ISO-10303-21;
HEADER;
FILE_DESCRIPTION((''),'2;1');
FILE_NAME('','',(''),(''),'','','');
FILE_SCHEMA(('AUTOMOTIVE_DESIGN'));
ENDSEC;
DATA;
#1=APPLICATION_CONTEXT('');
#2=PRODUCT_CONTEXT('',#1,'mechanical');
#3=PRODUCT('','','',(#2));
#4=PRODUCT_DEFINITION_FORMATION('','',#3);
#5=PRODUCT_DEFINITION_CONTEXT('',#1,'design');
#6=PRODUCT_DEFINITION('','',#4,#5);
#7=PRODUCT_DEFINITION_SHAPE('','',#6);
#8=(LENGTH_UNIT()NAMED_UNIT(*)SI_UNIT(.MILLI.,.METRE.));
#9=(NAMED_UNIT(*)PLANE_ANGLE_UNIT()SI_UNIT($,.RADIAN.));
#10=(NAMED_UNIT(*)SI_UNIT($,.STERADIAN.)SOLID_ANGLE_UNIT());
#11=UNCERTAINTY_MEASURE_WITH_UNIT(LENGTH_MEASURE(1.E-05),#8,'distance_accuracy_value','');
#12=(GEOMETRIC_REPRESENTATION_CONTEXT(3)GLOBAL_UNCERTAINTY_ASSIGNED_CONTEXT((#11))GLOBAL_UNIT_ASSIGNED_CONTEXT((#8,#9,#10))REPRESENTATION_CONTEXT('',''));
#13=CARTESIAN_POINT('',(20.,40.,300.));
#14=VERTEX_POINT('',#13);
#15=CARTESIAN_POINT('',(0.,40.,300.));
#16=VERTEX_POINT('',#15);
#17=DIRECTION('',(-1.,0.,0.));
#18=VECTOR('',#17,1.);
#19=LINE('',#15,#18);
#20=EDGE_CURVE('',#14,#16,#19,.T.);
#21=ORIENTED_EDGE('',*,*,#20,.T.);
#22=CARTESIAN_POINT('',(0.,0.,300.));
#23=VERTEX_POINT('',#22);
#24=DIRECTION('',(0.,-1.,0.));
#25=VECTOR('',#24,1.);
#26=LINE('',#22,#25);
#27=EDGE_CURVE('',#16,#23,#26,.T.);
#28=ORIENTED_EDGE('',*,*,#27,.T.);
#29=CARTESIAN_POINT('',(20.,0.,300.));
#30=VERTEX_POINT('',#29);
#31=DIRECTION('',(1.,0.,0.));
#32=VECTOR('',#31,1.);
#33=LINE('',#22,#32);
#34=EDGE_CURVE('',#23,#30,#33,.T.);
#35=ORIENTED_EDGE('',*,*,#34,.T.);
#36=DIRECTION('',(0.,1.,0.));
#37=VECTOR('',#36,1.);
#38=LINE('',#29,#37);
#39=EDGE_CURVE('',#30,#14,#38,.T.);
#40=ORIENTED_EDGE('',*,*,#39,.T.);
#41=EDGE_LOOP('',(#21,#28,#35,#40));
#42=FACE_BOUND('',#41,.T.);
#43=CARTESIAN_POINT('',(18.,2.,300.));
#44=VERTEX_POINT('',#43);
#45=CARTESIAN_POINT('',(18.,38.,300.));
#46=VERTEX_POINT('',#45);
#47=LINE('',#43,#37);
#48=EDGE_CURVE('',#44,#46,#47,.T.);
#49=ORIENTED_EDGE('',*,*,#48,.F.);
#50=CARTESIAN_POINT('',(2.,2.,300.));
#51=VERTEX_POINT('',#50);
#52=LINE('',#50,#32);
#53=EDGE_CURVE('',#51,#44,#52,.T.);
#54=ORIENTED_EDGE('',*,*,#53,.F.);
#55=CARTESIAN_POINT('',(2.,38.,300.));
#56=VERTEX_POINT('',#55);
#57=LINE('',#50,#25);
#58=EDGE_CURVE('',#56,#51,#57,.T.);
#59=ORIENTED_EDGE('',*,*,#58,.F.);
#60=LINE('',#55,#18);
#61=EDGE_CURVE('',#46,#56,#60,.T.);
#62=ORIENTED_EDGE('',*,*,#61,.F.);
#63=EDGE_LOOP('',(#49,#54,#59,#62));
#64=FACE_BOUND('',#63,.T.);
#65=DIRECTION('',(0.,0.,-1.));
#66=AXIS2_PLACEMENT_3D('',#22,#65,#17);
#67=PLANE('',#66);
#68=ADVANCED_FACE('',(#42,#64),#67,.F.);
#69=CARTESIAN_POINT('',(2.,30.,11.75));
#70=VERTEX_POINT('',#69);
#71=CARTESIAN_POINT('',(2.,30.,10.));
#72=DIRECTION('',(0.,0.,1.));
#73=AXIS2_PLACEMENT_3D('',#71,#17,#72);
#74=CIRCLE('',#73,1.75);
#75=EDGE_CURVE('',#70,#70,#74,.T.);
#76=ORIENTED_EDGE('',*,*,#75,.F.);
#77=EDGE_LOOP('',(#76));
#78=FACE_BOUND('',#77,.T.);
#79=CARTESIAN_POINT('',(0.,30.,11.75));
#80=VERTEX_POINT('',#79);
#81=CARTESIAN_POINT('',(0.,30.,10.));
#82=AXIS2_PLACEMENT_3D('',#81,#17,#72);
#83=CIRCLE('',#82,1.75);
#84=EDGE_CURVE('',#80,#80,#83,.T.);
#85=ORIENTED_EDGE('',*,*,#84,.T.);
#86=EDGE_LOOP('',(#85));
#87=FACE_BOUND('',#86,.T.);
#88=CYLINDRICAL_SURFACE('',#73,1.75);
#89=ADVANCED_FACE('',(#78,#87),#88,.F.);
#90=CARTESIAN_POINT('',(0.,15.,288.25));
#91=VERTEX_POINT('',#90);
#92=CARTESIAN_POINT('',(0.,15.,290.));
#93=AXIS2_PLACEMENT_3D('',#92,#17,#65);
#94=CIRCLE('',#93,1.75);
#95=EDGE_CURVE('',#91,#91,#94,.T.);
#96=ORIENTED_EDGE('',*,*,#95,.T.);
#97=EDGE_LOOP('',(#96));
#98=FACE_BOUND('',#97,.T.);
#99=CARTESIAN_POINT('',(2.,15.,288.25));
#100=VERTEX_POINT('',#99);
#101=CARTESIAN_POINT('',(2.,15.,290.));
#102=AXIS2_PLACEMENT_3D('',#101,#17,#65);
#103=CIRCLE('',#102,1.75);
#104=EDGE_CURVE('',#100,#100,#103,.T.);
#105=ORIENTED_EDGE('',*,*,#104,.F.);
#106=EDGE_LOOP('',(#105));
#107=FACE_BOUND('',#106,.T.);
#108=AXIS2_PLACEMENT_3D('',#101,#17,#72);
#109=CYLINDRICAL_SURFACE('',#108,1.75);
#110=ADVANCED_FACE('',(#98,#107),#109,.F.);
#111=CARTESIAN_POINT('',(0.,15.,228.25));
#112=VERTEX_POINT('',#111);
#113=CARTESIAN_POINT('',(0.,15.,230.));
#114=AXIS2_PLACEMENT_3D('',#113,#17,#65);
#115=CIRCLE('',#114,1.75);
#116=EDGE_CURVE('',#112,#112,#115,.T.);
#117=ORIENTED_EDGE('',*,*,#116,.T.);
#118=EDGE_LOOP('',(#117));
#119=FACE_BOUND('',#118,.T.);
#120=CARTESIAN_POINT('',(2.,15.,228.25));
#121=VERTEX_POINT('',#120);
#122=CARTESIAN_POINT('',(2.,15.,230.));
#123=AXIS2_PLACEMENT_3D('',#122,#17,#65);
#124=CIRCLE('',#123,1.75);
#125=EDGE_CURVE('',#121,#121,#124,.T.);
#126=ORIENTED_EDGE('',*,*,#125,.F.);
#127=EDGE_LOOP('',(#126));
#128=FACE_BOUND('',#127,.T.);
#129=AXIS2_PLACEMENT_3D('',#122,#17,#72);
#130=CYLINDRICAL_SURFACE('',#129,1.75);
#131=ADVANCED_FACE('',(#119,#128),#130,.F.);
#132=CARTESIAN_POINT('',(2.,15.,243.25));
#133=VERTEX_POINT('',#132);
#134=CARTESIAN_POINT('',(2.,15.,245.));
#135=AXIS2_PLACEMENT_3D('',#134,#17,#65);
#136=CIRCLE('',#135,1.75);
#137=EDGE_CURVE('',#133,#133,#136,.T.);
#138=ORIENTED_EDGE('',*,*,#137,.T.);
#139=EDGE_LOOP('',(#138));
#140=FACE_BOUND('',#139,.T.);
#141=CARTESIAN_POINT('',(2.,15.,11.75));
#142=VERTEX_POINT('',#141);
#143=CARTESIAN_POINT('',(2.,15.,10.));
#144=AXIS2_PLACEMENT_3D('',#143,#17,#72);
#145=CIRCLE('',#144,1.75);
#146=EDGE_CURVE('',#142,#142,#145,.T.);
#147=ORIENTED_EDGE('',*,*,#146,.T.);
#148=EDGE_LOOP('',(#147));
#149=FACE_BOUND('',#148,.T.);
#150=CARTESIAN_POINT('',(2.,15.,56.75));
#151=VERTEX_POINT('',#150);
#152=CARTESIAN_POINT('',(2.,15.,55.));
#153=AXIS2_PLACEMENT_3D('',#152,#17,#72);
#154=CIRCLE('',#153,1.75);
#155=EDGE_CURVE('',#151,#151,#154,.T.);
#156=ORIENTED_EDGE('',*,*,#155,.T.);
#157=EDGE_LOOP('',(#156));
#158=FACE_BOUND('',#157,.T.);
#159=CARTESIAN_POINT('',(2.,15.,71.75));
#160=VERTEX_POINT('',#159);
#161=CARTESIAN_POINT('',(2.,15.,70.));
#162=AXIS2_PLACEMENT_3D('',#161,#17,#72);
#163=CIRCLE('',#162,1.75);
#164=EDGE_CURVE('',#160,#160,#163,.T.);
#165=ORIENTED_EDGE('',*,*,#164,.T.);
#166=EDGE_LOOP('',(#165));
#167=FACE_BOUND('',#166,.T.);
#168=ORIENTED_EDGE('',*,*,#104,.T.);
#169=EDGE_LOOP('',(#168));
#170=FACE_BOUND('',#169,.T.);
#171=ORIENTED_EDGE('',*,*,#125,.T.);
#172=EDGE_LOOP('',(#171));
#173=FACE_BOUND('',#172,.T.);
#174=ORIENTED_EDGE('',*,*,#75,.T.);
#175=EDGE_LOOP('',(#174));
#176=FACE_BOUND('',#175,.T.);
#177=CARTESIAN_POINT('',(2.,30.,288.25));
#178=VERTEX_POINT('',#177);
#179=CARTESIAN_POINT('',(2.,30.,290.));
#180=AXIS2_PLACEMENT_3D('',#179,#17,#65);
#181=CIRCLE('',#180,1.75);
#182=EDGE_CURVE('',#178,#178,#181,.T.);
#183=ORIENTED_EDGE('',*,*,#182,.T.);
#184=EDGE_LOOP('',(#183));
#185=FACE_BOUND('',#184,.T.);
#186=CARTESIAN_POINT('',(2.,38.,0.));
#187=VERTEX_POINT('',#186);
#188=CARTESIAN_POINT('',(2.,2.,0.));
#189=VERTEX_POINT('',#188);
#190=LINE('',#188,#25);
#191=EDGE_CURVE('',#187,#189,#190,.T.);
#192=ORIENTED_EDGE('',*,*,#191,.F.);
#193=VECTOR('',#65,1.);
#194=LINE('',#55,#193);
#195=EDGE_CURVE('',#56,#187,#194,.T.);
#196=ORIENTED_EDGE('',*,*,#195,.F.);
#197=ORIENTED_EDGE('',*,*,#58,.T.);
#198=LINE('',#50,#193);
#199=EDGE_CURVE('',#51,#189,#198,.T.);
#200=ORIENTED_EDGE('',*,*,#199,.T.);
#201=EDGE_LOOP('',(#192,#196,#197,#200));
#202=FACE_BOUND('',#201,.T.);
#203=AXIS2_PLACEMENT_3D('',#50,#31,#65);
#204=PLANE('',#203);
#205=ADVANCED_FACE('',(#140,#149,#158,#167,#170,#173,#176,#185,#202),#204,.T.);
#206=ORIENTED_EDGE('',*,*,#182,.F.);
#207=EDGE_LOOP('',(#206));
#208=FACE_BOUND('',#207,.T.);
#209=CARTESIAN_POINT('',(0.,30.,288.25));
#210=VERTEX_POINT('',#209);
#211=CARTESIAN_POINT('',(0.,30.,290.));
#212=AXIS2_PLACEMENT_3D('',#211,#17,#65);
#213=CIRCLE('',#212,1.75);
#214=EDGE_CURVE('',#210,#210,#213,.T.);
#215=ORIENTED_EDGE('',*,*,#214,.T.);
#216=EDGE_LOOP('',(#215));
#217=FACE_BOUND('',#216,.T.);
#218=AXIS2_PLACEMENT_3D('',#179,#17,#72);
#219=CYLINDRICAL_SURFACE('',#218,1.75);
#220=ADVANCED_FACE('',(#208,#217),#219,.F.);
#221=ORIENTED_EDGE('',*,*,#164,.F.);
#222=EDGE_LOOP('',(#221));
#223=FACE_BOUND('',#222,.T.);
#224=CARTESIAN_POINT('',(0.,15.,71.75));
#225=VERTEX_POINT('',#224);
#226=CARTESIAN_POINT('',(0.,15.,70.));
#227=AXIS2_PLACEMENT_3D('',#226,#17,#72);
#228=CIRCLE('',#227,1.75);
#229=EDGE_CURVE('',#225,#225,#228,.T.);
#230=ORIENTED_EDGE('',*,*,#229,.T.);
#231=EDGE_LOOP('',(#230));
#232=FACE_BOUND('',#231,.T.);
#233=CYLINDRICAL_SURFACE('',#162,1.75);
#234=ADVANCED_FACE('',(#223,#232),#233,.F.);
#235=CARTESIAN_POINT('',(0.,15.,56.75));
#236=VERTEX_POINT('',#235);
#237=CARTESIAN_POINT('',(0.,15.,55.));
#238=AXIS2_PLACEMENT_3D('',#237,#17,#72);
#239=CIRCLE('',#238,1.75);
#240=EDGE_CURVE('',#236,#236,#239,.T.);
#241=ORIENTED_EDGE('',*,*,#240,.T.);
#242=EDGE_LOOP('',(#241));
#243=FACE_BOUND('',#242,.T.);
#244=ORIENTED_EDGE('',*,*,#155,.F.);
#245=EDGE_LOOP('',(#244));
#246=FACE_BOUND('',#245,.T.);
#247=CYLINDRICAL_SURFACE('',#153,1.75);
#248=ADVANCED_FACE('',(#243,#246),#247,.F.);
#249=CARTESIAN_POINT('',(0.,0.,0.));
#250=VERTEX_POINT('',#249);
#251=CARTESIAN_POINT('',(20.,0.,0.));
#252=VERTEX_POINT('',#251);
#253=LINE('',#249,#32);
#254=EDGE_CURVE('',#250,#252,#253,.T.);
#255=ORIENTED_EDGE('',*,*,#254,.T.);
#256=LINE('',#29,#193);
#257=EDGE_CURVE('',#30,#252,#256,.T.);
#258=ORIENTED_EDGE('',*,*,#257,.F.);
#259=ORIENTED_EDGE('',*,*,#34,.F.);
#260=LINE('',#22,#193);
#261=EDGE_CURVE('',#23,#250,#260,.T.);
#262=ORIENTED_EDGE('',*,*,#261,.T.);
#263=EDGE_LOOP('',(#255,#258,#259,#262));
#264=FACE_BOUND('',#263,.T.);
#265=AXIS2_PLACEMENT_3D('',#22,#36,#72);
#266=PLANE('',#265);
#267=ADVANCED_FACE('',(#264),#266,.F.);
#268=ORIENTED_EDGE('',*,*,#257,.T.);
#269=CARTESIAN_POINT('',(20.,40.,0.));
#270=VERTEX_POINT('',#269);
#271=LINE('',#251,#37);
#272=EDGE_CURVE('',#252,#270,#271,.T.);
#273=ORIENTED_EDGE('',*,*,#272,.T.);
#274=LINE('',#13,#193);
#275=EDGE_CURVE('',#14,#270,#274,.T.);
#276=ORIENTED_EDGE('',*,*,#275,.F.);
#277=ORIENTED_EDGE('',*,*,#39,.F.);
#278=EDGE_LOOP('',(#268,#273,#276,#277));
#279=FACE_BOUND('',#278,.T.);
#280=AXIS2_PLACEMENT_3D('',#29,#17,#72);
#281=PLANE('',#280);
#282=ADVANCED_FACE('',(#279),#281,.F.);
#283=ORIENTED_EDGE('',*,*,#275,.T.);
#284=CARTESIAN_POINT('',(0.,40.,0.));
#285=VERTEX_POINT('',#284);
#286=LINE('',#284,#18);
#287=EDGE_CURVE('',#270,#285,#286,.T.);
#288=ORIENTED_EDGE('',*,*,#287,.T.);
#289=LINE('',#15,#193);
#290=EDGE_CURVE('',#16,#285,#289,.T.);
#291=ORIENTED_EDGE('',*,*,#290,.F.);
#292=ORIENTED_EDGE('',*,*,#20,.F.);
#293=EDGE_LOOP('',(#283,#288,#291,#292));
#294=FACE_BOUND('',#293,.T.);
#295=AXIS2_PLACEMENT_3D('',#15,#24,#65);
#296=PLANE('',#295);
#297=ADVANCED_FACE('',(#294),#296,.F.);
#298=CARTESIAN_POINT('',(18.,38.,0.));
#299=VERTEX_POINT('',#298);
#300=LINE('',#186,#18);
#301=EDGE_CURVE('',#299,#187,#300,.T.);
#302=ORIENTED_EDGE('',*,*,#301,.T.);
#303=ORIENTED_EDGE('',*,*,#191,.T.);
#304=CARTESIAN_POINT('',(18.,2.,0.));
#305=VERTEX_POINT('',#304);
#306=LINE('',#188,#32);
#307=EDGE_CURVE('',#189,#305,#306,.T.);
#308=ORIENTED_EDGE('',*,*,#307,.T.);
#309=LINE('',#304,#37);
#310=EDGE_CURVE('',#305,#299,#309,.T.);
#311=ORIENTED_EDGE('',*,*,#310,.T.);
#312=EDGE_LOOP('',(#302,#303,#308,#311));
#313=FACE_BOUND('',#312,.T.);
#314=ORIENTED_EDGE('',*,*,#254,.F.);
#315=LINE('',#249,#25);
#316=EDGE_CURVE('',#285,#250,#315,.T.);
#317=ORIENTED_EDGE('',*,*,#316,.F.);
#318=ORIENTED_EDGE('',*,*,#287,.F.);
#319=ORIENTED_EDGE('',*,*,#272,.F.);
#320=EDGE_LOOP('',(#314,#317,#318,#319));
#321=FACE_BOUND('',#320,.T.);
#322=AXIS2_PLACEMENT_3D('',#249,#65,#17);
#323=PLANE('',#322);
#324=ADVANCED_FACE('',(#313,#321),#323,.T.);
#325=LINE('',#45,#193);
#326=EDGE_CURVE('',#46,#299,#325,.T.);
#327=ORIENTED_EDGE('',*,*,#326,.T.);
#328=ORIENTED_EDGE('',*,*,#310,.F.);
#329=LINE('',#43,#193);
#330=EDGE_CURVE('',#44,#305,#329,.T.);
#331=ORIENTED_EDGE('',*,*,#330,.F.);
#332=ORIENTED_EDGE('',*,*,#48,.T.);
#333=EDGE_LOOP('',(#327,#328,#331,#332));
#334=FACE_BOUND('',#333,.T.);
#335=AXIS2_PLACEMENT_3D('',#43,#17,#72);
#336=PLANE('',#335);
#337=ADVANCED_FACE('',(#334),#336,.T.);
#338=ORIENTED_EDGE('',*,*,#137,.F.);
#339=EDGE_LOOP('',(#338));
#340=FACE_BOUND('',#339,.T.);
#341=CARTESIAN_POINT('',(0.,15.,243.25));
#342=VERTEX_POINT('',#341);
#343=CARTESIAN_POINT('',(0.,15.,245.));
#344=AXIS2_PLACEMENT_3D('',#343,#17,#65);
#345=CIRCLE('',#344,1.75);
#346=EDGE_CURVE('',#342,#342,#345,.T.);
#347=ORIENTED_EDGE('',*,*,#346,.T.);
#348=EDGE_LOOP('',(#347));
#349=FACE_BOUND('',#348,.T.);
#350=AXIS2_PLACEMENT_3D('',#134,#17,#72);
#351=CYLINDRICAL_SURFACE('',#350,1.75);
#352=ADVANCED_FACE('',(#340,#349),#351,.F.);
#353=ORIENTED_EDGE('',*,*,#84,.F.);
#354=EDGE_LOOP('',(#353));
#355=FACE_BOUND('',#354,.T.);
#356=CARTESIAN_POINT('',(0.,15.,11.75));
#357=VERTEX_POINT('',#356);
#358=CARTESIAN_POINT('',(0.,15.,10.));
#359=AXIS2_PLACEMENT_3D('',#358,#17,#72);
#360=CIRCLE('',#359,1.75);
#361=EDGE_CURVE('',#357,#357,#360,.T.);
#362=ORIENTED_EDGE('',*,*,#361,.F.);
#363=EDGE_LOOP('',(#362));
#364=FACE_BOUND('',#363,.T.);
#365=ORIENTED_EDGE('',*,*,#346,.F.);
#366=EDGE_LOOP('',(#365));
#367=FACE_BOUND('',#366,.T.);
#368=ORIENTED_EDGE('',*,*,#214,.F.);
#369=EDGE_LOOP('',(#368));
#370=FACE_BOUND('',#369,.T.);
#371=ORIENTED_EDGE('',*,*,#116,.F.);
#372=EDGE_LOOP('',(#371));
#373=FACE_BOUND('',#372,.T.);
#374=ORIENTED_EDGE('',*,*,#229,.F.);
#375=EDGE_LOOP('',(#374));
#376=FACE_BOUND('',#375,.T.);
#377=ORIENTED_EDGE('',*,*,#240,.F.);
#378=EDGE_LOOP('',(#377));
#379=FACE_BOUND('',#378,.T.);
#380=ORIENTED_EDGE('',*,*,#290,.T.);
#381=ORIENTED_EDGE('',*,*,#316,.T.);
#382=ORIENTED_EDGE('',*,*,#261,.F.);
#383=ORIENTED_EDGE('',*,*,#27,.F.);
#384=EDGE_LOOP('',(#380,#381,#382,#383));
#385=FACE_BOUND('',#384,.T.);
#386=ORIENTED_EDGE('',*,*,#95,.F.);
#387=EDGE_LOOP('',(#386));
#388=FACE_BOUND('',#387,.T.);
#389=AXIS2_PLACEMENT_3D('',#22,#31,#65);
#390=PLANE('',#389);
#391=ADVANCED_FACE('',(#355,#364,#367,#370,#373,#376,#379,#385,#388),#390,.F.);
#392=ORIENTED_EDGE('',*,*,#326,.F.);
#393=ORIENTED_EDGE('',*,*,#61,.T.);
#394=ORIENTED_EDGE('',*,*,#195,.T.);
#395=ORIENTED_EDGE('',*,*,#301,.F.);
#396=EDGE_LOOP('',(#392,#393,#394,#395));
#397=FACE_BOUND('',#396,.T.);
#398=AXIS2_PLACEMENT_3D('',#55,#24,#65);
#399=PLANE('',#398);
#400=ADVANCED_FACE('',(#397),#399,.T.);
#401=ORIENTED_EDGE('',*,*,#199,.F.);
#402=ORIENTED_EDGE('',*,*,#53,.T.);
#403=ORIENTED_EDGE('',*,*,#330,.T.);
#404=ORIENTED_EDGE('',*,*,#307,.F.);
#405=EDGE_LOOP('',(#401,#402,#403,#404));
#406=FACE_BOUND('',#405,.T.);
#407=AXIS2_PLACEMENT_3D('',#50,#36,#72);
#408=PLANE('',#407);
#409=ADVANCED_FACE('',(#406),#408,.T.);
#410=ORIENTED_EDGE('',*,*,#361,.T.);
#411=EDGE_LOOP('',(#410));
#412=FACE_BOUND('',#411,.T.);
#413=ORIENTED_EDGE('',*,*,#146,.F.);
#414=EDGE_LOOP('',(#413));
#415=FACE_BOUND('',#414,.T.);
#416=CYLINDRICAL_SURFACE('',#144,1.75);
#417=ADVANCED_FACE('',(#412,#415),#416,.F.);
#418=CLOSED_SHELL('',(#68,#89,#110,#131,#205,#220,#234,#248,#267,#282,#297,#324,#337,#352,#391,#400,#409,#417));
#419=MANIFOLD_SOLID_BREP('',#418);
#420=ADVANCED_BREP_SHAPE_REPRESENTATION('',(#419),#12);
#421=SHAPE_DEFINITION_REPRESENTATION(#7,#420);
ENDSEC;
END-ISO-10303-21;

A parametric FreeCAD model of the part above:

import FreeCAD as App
import Part
import Sketcher
from FreeCAD import Vector


def add_polygon(sketch, points):
    """Adds a closed chain of lines whose ends are joined by coincident constraints."""
    first, n = sketch.GeometryCount, len(points)
    for a, b in zip(points, points[1:] + points[:1]):
        sketch.addGeometry(Part.LineSegment(App.Vector(*a, 0), App.Vector(*b, 0)), False)
    for i in range(n):
        sketch.addConstraint(Sketcher.Constraint("Coincident", first + i, 2, first + (i + 1) % n, 1))

doc = App.newDocument("Part")
body = doc.addObject("PartDesign::Body", "Body")

# Sketch on XY plane
sketch1 = body.newObject("Sketcher::SketchObject", "Sketch")
sketch1.AttachmentSupport = (doc.getObject("XY_Plane"), [""])
sketch1.MapMode = "FlatFace"
add_polygon(sketch1, [(0, 40), (0, 0), (20, 0), (20, 40)])  # lines 0-3
add_polygon(sketch1, [(18, 2), (2, 2), (2, 38), (18, 38)])  # lines 4-7
sketch1.addConstraint([
    Sketcher.Constraint("Vertical", 0),
    Sketcher.Constraint("Horizontal", 1),
    Sketcher.Constraint("Vertical", 2),
    Sketcher.Constraint("Horizontal", 3),
    Sketcher.Constraint("Horizontal", 4),
    Sketcher.Constraint("Vertical", 5),
    Sketcher.Constraint("Horizontal", 6),
    Sketcher.Constraint("Vertical", 7),
    Sketcher.Constraint("Coincident", 0, 2, -1, 1),
    Sketcher.Constraint("DistanceX", 1, 1, 1, 2, 20.0),
    Sketcher.Constraint("DistanceX", 4, 2, 4, 1, 16.0),
    Sketcher.Constraint("DistanceY", 0, 2, 0, 1, 40.0),
    Sketcher.Constraint("DistanceY", 5, 1, 5, 2, 36.0),
    Sketcher.Constraint("DistanceX", -1, 1, 4, 2, 2.0),
    Sketcher.Constraint("DistanceY", -1, 1, 4, 2, 2.0),
])
pad1 = body.newObject("PartDesign::Pad", "Pad")
pad1.Profile = sketch1
pad1.Length = 300

# Sketch on YZ plane
sketch2 = body.newObject("Sketcher::SketchObject", "Sketch001")
sketch2.AttachmentSupport = (doc.getObject("YZ_Plane"), [""])
sketch2.MapMode = "FlatFace"
sketch2.addGeometry([
    Part.Circle(Vector(30, 10, 0), Vector(0, 0, 1), 1.8),  # 0
    Part.Circle(Vector(15, 10, 0), Vector(0, 0, 1), 1.8),  # 1
    Part.Circle(Vector(15, 70, 0), Vector(0, 0, 1), 1.8),  # 2
    Part.Circle(Vector(15, 55, 0), Vector(0, 0, 1), 1.8),  # 3
    Part.Circle(Vector(15, 230, 0), Vector(0, 0, 1), 1.8),  # 4
    Part.Circle(Vector(15, 245, 0), Vector(0, 0, 1), 1.8),  # 5
    Part.Circle(Vector(15, 290, 0), Vector(0, 0, 1), 1.8),  # 6
    Part.Circle(Vector(30, 290, 0), Vector(0, 0, 1), 1.8),  # 7
], False)
sketch2.addConstraint([
    Sketcher.Constraint("Equal", 0, 1),
    Sketcher.Constraint("Equal", 1, 2),
    Sketcher.Constraint("Equal", 2, 3),
    Sketcher.Constraint("Equal", 3, 4),
    Sketcher.Constraint("Equal", 4, 5),
    Sketcher.Constraint("Equal", 5, 6),
    Sketcher.Constraint("Equal", 6, 7),
    Sketcher.Constraint("Horizontal", 0, 3, 1, 3),
    Sketcher.Constraint("Horizontal", 6, 3, 7, 3),
    Sketcher.Constraint("Vertical", 1, 3, 2, 3),
    Sketcher.Constraint("Vertical", 2, 3, 3, 3),
    Sketcher.Constraint("Vertical", 3, 3, 4, 3),
    Sketcher.Constraint("Vertical", 4, 3, 5, 3),
    Sketcher.Constraint("Vertical", 5, 3, 6, 3),
    Sketcher.Constraint("Vertical", 0, 3, 7, 3),
    Sketcher.Constraint("Diameter", 0, 3.5),
    Sketcher.Constraint("DistanceX", -1, 1, 0, 3, 30.0),
    Sketcher.Constraint("DistanceY", -1, 1, 0, 3, 10.0),
    Sketcher.Constraint("DistanceX", -1, 1, 1, 3, 15.0),
    Sketcher.Constraint("DistanceY", -1, 1, 2, 3, 70.0),
    Sketcher.Constraint("DistanceY", -1, 1, 3, 3, 55.0),
    Sketcher.Constraint("DistanceY", -1, 1, 4, 3, 230.0),
    Sketcher.Constraint("DistanceY", -1, 1, 5, 3, 245.0),
    Sketcher.Constraint("DistanceY", -1, 1, 6, 3, 290.0),
])
pocket1 = body.newObject("PartDesign::Pocket", "Pocket")
pocket1.Profile = sketch2
pocket1.Length = 2
pocket1.Reversed = True

doc.recompute()
